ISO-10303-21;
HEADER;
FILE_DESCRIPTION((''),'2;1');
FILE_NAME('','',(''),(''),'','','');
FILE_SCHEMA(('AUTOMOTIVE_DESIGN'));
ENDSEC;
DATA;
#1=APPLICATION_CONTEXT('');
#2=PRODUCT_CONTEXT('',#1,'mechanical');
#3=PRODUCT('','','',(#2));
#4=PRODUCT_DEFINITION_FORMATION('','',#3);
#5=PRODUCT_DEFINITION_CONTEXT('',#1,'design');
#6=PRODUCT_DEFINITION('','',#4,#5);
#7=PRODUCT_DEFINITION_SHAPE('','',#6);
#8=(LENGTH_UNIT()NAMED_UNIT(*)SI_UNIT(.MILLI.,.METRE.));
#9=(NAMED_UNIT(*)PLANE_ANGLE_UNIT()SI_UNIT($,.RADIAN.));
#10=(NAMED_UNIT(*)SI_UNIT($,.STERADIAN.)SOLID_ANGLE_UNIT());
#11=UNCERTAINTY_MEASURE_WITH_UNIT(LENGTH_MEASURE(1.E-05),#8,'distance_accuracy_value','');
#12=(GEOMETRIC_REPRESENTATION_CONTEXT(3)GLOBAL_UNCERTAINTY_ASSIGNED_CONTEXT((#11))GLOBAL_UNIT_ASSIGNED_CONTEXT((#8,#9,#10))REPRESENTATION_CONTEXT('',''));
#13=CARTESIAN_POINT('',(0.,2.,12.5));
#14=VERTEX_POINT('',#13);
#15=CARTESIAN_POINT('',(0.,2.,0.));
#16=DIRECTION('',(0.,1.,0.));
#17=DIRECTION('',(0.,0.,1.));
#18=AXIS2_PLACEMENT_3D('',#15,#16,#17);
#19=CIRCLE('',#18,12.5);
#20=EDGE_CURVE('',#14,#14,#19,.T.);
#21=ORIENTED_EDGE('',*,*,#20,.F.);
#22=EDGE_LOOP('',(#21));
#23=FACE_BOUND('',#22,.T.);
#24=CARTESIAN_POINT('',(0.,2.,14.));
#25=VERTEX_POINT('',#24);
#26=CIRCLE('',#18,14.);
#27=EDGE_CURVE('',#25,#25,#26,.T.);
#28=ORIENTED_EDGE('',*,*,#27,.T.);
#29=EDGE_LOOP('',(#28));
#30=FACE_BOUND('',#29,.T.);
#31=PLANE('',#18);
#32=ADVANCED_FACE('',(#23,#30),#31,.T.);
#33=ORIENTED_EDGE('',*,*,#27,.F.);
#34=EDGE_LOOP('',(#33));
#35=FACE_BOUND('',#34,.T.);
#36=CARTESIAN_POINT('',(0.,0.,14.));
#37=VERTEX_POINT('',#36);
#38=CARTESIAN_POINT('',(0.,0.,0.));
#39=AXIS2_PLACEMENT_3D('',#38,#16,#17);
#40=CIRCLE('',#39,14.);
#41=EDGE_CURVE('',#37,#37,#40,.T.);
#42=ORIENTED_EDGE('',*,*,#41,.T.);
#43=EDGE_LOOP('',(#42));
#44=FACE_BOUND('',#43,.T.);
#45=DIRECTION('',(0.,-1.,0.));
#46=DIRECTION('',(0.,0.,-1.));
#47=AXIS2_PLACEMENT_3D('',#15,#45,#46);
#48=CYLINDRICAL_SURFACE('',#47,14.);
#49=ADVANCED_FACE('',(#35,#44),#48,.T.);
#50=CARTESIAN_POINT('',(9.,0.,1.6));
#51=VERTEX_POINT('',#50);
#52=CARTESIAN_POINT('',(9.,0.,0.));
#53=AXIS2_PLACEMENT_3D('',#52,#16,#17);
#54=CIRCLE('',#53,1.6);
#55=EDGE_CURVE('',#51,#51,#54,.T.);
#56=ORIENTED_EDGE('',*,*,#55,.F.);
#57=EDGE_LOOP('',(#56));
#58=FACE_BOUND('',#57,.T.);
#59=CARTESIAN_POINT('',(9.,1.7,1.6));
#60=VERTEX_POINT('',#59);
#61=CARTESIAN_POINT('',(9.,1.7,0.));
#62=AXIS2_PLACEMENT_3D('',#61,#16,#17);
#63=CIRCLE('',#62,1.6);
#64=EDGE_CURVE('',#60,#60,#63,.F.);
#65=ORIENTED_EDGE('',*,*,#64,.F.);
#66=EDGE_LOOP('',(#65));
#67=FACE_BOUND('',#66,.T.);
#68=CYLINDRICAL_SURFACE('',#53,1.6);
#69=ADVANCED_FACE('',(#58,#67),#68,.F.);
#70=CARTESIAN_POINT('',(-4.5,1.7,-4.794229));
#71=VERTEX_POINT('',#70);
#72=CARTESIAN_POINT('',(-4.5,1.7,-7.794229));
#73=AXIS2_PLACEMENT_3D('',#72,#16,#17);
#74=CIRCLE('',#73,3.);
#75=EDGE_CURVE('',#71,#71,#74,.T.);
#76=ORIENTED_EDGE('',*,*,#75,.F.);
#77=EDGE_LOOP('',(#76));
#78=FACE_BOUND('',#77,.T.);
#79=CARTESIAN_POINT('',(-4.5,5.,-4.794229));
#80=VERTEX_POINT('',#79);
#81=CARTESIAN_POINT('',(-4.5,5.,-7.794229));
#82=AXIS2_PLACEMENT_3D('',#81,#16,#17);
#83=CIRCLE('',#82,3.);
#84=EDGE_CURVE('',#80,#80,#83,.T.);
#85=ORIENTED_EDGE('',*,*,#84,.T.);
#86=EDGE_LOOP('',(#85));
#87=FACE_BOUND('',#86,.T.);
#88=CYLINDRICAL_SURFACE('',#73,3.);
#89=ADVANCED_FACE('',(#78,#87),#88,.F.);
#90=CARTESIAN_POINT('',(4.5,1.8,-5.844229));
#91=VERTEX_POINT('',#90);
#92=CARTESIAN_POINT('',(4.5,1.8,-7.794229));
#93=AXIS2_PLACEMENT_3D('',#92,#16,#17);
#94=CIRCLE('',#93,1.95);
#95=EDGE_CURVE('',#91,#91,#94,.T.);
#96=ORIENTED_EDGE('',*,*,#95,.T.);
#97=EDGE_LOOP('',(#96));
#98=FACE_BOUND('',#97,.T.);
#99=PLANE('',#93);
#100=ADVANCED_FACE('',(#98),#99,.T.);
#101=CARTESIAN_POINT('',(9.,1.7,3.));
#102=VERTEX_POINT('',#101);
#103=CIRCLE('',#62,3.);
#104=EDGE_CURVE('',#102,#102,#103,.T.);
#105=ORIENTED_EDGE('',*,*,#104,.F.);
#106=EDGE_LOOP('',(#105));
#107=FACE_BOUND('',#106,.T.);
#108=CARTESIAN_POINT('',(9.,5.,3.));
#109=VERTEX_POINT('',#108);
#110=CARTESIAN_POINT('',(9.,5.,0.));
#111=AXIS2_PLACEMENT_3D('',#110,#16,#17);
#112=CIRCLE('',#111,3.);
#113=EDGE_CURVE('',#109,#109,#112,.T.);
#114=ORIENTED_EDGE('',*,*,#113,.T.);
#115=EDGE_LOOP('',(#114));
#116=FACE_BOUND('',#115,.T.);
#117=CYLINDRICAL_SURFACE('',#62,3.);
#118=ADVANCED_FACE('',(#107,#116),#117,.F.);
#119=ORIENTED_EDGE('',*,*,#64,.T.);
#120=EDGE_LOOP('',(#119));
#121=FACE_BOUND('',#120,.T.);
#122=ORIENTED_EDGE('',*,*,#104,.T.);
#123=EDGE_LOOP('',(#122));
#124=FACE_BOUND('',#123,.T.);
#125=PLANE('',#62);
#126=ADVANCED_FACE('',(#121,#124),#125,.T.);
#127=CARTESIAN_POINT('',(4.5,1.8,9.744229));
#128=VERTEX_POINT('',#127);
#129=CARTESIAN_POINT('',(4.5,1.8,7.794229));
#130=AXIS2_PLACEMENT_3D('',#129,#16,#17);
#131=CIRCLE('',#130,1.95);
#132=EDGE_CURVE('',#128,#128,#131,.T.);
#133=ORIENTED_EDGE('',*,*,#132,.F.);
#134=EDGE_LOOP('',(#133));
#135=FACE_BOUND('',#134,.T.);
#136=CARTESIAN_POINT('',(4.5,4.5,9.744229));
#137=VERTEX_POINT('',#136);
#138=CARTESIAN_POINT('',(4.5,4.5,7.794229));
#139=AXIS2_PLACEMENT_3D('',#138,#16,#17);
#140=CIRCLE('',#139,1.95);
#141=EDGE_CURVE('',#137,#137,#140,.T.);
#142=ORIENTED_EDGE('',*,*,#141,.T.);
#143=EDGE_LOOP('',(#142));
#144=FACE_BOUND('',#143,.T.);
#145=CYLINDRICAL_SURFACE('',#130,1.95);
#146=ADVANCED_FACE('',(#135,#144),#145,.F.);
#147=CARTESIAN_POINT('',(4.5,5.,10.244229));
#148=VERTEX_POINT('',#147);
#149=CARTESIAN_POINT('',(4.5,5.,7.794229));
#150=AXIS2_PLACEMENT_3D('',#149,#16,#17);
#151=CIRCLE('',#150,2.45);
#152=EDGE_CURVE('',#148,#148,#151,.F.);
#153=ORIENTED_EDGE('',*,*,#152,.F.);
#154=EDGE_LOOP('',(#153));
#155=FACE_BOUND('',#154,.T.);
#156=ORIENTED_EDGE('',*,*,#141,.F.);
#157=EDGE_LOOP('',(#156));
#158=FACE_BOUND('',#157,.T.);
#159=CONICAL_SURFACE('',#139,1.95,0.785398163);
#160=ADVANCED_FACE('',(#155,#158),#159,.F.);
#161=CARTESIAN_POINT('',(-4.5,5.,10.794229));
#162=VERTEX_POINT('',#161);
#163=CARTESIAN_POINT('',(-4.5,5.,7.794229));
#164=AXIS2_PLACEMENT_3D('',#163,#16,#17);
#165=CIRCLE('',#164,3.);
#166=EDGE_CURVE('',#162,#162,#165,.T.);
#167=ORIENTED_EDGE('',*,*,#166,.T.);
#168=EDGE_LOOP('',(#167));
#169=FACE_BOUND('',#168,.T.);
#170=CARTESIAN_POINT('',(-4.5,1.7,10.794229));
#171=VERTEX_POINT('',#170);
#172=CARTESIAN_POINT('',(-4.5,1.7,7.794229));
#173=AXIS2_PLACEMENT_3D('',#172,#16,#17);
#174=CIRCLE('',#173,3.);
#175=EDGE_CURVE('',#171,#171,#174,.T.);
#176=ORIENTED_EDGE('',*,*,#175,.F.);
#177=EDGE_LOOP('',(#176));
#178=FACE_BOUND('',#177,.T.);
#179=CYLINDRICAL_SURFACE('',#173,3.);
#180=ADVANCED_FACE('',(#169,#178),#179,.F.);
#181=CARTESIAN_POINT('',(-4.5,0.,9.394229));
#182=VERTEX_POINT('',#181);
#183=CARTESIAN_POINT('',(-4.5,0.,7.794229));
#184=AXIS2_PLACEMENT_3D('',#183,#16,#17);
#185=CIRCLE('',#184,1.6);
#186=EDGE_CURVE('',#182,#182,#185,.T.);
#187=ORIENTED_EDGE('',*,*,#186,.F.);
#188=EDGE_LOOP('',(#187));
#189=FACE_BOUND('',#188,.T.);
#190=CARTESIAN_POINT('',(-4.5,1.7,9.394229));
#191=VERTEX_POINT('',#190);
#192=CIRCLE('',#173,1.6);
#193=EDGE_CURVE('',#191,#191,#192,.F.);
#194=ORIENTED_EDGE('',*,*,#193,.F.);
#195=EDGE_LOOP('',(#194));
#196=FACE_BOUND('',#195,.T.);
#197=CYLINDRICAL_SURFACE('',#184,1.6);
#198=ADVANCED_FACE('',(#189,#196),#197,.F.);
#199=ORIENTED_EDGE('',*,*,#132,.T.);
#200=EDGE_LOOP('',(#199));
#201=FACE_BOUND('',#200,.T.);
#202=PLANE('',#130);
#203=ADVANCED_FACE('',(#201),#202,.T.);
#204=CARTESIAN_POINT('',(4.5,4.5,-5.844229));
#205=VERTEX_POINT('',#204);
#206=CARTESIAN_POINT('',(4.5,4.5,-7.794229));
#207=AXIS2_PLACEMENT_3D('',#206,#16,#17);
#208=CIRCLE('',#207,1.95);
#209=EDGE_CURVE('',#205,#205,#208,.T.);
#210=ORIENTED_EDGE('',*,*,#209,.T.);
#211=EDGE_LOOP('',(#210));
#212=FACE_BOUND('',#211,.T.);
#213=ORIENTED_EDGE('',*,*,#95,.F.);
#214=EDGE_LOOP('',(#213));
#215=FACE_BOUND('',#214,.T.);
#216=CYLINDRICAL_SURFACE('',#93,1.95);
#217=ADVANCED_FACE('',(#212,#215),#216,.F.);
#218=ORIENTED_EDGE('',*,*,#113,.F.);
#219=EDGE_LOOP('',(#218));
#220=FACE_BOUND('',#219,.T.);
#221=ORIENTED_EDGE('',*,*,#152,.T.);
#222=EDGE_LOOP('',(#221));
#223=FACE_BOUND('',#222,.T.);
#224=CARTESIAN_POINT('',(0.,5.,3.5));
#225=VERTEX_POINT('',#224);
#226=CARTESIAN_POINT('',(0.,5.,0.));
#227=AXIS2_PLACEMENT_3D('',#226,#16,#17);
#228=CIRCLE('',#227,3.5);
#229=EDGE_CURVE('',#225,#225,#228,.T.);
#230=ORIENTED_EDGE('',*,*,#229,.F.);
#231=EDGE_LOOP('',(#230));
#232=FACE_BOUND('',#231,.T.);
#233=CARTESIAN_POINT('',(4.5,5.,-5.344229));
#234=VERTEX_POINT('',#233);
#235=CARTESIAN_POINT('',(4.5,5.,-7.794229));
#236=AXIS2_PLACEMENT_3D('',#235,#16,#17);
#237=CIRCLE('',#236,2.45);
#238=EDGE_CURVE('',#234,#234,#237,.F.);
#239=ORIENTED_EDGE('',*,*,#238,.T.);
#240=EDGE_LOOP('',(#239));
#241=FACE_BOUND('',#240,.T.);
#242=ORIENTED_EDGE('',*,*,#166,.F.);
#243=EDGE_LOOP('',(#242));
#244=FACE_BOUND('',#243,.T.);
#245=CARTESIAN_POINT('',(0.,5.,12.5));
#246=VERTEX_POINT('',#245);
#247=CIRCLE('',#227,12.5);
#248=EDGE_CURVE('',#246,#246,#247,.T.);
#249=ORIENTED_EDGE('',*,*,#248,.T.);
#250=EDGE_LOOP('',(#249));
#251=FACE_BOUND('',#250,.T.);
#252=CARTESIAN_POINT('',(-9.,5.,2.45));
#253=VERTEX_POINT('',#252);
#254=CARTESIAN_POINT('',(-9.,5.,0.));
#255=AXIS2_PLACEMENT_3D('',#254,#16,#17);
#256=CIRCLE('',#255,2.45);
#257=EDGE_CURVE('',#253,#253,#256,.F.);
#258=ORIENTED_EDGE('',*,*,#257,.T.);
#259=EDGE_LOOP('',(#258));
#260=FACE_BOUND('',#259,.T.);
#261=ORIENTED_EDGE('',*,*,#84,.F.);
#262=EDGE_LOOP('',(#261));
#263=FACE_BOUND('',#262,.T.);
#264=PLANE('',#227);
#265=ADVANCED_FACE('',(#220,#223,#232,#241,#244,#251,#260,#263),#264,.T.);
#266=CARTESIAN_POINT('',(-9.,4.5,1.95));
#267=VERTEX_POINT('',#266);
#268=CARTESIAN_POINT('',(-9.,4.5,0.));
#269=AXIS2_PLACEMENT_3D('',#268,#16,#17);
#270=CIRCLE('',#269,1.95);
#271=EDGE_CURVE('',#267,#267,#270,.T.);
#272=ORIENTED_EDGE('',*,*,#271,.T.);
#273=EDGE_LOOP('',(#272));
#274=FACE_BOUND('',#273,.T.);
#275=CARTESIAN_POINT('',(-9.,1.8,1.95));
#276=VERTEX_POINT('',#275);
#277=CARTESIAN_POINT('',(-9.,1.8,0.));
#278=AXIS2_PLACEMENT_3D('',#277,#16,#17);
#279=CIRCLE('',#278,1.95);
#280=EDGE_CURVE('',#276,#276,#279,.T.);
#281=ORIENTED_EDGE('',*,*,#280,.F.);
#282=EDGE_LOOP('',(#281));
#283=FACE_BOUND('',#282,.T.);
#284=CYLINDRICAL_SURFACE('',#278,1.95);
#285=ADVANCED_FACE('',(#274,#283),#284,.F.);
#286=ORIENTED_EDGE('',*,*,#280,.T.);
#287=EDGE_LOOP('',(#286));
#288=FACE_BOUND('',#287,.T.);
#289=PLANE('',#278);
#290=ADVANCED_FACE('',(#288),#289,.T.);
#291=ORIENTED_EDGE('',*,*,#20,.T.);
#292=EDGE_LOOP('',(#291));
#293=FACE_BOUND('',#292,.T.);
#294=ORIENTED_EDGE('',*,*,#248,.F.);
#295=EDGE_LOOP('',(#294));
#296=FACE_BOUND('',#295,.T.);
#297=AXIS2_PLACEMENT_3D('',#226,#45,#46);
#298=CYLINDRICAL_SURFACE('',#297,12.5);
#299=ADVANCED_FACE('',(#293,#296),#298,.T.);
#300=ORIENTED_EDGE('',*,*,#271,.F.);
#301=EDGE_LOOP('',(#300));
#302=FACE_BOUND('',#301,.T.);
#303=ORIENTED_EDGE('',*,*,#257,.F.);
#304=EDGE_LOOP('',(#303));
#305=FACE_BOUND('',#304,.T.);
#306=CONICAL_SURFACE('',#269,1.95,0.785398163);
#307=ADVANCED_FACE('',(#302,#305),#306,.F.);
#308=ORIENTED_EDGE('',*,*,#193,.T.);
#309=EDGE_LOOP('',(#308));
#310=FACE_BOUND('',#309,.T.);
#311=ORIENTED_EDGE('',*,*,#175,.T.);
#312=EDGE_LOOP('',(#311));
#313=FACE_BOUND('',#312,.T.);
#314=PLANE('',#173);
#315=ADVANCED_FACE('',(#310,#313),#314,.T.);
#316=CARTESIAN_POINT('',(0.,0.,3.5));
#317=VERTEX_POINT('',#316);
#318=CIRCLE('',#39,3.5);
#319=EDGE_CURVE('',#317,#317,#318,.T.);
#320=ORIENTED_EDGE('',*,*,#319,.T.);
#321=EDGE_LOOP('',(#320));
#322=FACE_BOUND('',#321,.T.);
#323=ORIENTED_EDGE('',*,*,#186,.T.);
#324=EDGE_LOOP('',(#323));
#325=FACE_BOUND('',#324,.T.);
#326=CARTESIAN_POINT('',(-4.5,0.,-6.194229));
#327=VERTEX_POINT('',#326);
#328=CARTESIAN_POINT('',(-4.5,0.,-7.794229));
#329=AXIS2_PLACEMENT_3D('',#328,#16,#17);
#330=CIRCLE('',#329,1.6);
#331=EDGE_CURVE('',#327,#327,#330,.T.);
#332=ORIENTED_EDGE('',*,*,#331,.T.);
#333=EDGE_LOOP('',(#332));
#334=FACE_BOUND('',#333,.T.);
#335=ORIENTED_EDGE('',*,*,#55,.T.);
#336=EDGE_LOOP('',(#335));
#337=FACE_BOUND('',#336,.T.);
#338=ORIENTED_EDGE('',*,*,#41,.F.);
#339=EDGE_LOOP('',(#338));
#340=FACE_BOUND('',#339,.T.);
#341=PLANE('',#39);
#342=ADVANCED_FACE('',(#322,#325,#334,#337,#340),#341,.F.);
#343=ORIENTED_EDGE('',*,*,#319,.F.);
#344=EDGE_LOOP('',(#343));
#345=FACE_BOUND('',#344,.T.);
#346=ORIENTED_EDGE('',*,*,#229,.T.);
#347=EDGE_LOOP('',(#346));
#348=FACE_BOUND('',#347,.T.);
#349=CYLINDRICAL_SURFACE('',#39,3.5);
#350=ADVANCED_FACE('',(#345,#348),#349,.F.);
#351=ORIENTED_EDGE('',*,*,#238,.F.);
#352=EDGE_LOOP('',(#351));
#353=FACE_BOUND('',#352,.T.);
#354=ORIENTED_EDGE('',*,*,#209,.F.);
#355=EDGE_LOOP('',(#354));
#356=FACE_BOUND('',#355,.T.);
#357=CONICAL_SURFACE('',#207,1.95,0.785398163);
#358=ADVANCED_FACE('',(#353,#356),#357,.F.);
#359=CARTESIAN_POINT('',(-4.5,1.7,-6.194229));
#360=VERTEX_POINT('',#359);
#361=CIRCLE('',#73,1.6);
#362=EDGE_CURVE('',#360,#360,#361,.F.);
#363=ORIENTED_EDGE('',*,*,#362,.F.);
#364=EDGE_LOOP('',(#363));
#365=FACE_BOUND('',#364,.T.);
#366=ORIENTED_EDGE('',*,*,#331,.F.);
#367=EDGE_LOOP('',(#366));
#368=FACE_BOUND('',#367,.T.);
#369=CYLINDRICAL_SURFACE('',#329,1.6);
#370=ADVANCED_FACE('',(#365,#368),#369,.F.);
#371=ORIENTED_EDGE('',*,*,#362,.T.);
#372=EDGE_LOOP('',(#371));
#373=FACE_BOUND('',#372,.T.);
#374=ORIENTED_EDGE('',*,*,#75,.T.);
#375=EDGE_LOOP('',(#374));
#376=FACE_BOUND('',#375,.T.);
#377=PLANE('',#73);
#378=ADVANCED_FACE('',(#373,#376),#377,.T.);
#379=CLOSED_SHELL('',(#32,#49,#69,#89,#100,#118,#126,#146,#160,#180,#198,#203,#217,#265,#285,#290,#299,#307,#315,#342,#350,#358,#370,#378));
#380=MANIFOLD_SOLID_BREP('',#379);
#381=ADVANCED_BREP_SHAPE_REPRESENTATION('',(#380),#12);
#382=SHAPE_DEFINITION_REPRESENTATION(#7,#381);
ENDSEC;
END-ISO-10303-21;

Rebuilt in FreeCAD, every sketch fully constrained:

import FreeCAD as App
import Part
import Sketcher
from FreeCAD import Vector


def edges_at(feature, points):
    """Names of the edges that pass closest to the given points."""
    edges = feature.Shape.Edges
    near = lambda p: min(range(len(edges)), key=lambda i: edges[i].distToShape(Part.Vertex(*p))[0])
    return sorted({f"Edge{near(p) + 1}" for p in points})

doc = App.newDocument("Part")
params = doc.addObject("Spreadsheet::Sheet", "Params")
for row, (alias, value) in enumerate([
    ("sketch1_diameter", "28 mm"),
    ("pad1_length", "2 mm"),
    ("sketch2_diameter", "25 mm"),
    ("pad2_length", "3 mm"),
    ("sketch3_diameter", "3.2 mm"),
    ("sketch4_diameter", "6 mm"),
    ("pocket2_length", "3.3 mm"),
    ("sketch5_diameter", "3.9 mm"),
    ("pocket3_length", "3.2 mm"),
    ("chamfer_size", "0.5 mm"),
    ("sketch6_diameter", "7 mm"),
], start=1):
    params.set(f"A{row}", alias)
    params.set(f"B{row}", "=" + value)
    params.setAlias(f"B{row}", alias)

body = doc.addObject("PartDesign::Body", "Body")

sketch1 = doc.addObject("Sketcher::SketchObject", "Sketch")
body.addObject(sketch1)
sketch1.AttachmentSupport = (doc.XZ_Plane, [""])
sketch1.MapMode = "FlatFace"
sketch1.addGeometry(Part.Circle(Vector(0, 0, 0), Vector(0, 0, 1), 14), False)
sketch1.addConstraint(Sketcher.Constraint("Coincident", 0, 3, -1, 1))
sketch1.addConstraint(Sketcher.Constraint("Diameter", 0, 28.0))
sketch1.setExpression("Constraints[1]", "Params.sketch1_diameter")
pad1 = doc.addObject("PartDesign::Pad", "Pad")
body.addObject(pad1)
pad1.Profile = sketch1
pad1.setExpression("Length", "Params.pad1_length")
pad1.Reversed = True

sketch2 = doc.addObject("Sketcher::SketchObject", "Sketch001")
body.addObject(sketch2)
sketch2.AttachmentSupport = (doc.XZ_Plane, [""])
sketch2.MapMode = "FlatFace"
sketch2.AttachmentOffset = App.Placement(Vector(0, 0, -2), App.Rotation())
sketch2.addGeometry(Part.Circle(Vector(0, 0, 0), Vector(0, 0, 1), 12), False)
sketch2.addConstraint(Sketcher.Constraint("Coincident", 0, 3, -1, 1))
sketch2.addConstraint(Sketcher.Constraint("Diameter", 0, 25.0))
sketch2.setExpression("Constraints[1]", "Params.sketch2_diameter")
pad2 = doc.addObject("PartDesign::Pad", "Pad001")
body.addObject(pad2)
pad2.Profile = sketch2
pad2.setExpression("Length", "Params.pad2_length")
pad2.Reversed = True

sketch3 = doc.addObject("Sketcher::SketchObject", "Sketch002")
body.addObject(sketch3)
sketch3.AttachmentSupport = (doc.XZ_Plane, [""])
sketch3.MapMode = "FlatFace"
sketch3.AttachmentOffset = App.Placement(Vector(0, 0, -5), App.Rotation())
sketch3.addGeometry(Part.Circle(Vector(9, 0, 0), Vector(0, 0, 1), 1.6), False)
sketch3.addGeometry(Part.Circle(Vector(-4.5, 7.8, 0), Vector(0, 0, 1), 1.6), False)
sketch3.addGeometry(Part.Circle(Vector(-4.5, -7.8, 0), Vector(0, 0, 1), 1.6), False)
sketch3.addConstraint(Sketcher.Constraint("Equal", 0, 1))
sketch3.addConstraint(Sketcher.Constraint("Equal", 1, 2))
sketch3.addConstraint(Sketcher.Constraint("Symmetric", 1, 3, 2, 3, -1))
sketch3.addConstraint(Sketcher.Constraint("PointOnObject", 0, 3, -1))
sketch3.addConstraint(Sketcher.Constraint("Diameter", 0, 3.2))
sketch3.addConstraint(Sketcher.Constraint("DistanceX", -1, 1, 0, 3, 9.0))
sketch3.addConstraint(Sketcher.Constraint("DistanceX", 1, 3, -1, 1, 4.5))
sketch3.addConstraint(Sketcher.Constraint("DistanceY", -1, 1, 1, 3, 7.794229))
sketch3.setExpression("Constraints[4]", "Params.sketch3_diameter")
pocket1 = doc.addObject("PartDesign::Pocket", "Pocket")
body.addObject(pocket1)
pocket1.Profile = sketch3
pocket1.Type = "ThroughAll"
pocket1.Reversed = True

sketch4 = doc.addObject("Sketcher::SketchObject", "Sketch003")
body.addObject(sketch4)
sketch4.AttachmentSupport = (doc.XZ_Plane, [""])
sketch4.MapMode = "FlatFace"
sketch4.AttachmentOffset = App.Placement(Vector(0, 0, -5), App.Rotation())
sketch4.addGeometry(Part.Circle(Vector(9, 0, 0), Vector(0, 0, 1), 3), False)
sketch4.addGeometry(Part.Circle(Vector(-4.5, -7.8, 0), Vector(0, 0, 1), 3), False)
sketch4.addGeometry(Part.Circle(Vector(-4.5, 7.8, 0), Vector(0, 0, 1), 3), False)
sketch4.addConstraint(Sketcher.Constraint("Equal", 0, 1))
sketch4.addConstraint(Sketcher.Constraint("Equal", 1, 2))
sketch4.addConstraint(Sketcher.Constraint("Symmetric", 1, 3, 2, 3, -1))
sketch4.addConstraint(Sketcher.Constraint("PointOnObject", 0, 3, -1))
sketch4.addConstraint(Sketcher.Constraint("Diameter", 0, 6.0))
sketch4.addConstraint(Sketcher.Constraint("DistanceX", -1, 1, 0, 3, 9.0))
sketch4.addConstraint(Sketcher.Constraint("DistanceX", 1, 3, -1, 1, 4.5))
sketch4.addConstraint(Sketcher.Constraint("DistanceY", 1, 3, -1, 1, 7.794229))
sketch4.setExpression("Constraints[4]", "Params.sketch4_diameter")
pocket2 = doc.addObject("PartDesign::Pocket", "Pocket001")
body.addObject(pocket2)
pocket2.Profile = sketch4
pocket2.setExpression("Length", "Params.pocket2_length")
pocket2.Reversed = True

sketch5 = doc.addObject("Sketcher::SketchObject", "Sketch004")
body.addObject(sketch5)
sketch5.AttachmentSupport = (doc.XZ_Plane, [""])
sketch5.MapMode = "FlatFace"
sketch5.AttachmentOffset = App.Placement(Vector(0, 0, -5), App.Rotation())
sketch5.addGeometry(Part.Circle(Vector(4.5, -7.8, 0), Vector(0, 0, 1), 1.9), False)
sketch5.addGeometry(Part.Circle(Vector(4.5, 7.8, 0), Vector(0, 0, 1), 1.9), False)
sketch5.addGeometry(Part.Circle(Vector(-9, 0, 0), Vector(0, 0, 1), 1.9), False)
sketch5.addConstraint(Sketcher.Constraint("Equal", 0, 1))
sketch5.addConstraint(Sketcher.Constraint("Equal", 1, 2))
sketch5.addConstraint(Sketcher.Constraint("Symmetric", 0, 3, 1, 3, -1))
sketch5.addConstraint(Sketcher.Constraint("PointOnObject", 2, 3, -1))
sketch5.addConstraint(Sketcher.Constraint("Diameter", 0, 3.9))
sketch5.addConstraint(Sketcher.Constraint("DistanceX", 2, 3, -1, 1, 9.0))
sketch5.addConstraint(Sketcher.Constraint("DistanceX", -1, 1, 0, 3, 4.5))
sketch5.addConstraint(Sketcher.Constraint("DistanceY", 0, 3, -1, 1, 7.794229))
sketch5.setExpression("Constraints[4]", "Params.sketch5_diameter")
pocket3 = doc.addObject("PartDesign::Pocket", "Pocket002")
body.addObject(pocket3)
pocket3.Profile = sketch5
pocket3.setExpression("Length", "Params.pocket3_length")
pocket3.Reversed = True
doc.recompute()

chamfer = doc.addObject("PartDesign::Chamfer", "Chamfer")
body.addObject(chamfer)
chamfer.Base = (pocket3, edges_at(pocket3, [(2.55, 5, -7.794), (2.55, 5, 7.794), (-10.95, 5, 0)]))
chamfer.setExpression("Size", "Params.chamfer_size")

sketch6 = doc.addObject("Sketcher::SketchObject", "Sketch005")
body.addObject(sketch6)
sketch6.AttachmentSupport = (doc.XZ_Plane, [""])
sketch6.MapMode = "FlatFace"
sketch6.AttachmentOffset = App.Placement(Vector(0, 0, -5), App.Rotation())
sketch6.addGeometry(Part.Circle(Vector(0, 0, 0), Vector(0, 0, 1), 3.5), False)
sketch6.addConstraint(Sketcher.Constraint("Coincident", 0, 3, -1, 1))
sketch6.addConstraint(Sketcher.Constraint("Diameter", 0, 7.0))
sketch6.setExpression("Constraints[1]", "Params.sketch6_diameter")
pocket4 = doc.addObject("PartDesign::Pocket", "Pocket003")
body.addObject(pocket4)
pocket4.Profile = sketch6
pocket4.Type = "ThroughAll"
pocket4.Reversed = True

doc.recompute()
